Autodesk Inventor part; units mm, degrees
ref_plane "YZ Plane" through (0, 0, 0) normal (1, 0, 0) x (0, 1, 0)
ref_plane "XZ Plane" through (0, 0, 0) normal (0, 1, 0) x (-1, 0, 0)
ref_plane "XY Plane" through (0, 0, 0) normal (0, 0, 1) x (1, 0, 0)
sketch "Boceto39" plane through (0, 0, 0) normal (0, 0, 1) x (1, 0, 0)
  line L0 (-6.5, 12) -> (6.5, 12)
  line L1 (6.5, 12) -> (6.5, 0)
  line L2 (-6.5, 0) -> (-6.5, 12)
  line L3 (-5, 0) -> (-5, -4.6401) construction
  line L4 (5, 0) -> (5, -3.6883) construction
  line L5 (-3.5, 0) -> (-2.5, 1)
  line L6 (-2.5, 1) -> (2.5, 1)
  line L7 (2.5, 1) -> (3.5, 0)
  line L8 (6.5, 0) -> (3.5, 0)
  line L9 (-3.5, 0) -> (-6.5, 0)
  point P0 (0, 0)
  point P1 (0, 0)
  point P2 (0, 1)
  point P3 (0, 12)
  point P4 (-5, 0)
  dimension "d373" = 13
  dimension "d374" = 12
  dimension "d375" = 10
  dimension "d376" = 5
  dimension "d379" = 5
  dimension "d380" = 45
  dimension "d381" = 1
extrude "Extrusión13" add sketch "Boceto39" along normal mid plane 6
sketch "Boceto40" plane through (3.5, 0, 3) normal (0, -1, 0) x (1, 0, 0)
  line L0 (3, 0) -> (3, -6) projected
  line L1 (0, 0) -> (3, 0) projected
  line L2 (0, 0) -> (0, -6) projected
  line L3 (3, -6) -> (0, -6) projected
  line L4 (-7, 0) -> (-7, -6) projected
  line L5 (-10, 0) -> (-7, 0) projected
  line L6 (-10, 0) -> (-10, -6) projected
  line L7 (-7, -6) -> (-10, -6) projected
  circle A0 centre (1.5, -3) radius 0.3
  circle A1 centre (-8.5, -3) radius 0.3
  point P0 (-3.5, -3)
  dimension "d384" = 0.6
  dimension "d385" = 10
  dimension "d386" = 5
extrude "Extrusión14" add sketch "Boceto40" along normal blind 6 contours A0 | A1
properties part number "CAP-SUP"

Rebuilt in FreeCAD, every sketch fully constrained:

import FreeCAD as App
import Part
import Sketcher


def add_polygon(sketch, points):
    """Adds a closed chain of lines whose ends are joined by coincident constraints."""
    first, n = sketch.GeometryCount, len(points)
    for a, b in zip(points, points[1:] + points[:1]):
        sketch.addGeometry(Part.LineSegment(App.Vector(*a, 0), App.Vector(*b, 0)), False)
    for i in range(n):
        sketch.addConstraint(Sketcher.Constraint("Coincident", first + i, 2, first + (i + 1) % n, 1))

doc = App.newDocument("Part")
params = doc.addObject("Spreadsheet::Sheet", "Params")
for row, (alias, value) in enumerate([
    ("sketch1_width", "13 mm"),
    ("sketch1_width2", "5 mm"),
    ("sketch1_height", "12 mm"),
    ("pad1_length", "6 mm"),
    ("sketch2_diameter", "0.6 mm"),
    ("pad2_length", "6 mm"),
], start=1):
    params.set(f"A{row}", alias)
    params.set(f"B{row}", "=" + value)
    params.setAlias(f"B{row}", alias)

body = doc.addObject("PartDesign::Body", "Body")

# Sketch on XY plane
sketch1 = doc.addObject("Sketcher::SketchObject", "Sketch")
body.addObject(sketch1)
sketch1.AttachmentSupport = (doc.XY_Plane, [""])
sketch1.MapMode = "FlatFace"
add_polygon(sketch1, [(6.5, 12), (-6.5, 12), (-6.5, 0), (-3.5, 0), (-2.5, 1), (2.5, 1), (3.5, 0), (6.5, 0)])  # lines 0-7
sketch1.addConstraint(Sketcher.Constraint("Horizontal", 0))
sketch1.addConstraint(Sketcher.Constraint("Vertical", 1))
sketch1.addConstraint(Sketcher.Constraint("Horizontal", 2))
sketch1.addConstraint(Sketcher.Constraint("Horizontal", 4))
sketch1.addConstraint(Sketcher.Constraint("Horizontal", 6))
sketch1.addConstraint(Sketcher.Constraint("Vertical", 7))
sketch1.addConstraint(Sketcher.Constraint("Symmetric", 2, 2, 5, 2, -1, 1))
sketch1.addConstraint(Sketcher.Constraint("Symmetric", 1, 2, 6, 2, -2))
sketch1.addConstraint(Sketcher.Constraint("Perpendicular", 3, 5))
sketch1.addConstraint(Sketcher.Constraint("Equal", 3, 5))
sketch1.addConstraint(Sketcher.Constraint("DistanceX", 0, 2, 0, 1, 13.0))
sketch1.addConstraint(Sketcher.Constraint("DistanceX", 4, 1, 4, 2, 5.0))
sketch1.addConstraint(Sketcher.Constraint("DistanceY", 1, 2, 1, 1, 12.0))
sketch1.addConstraint(Sketcher.Constraint("DistanceY", -1, 1, 3, 2, 1.0))
sketch1.setExpression("Constraints[18]", "Params.sketch1_width")
sketch1.setExpression("Constraints[19]", "Params.sketch1_width2")
sketch1.setExpression("Constraints[20]", "Params.sketch1_height")
pad1 = doc.addObject("PartDesign::Pad", "Pad")
body.addObject(pad1)
pad1.Profile = sketch1
pad1.setExpression("Length", "Params.pad1_length")
pad1.Midplane = True

# Sketch on XZ plane
sketch2 = doc.addObject("Sketcher::SketchObject", "Sketch001")
body.addObject(sketch2)
sketch2.AttachmentSupport = (doc.XZ_Plane, [""])
sketch2.MapMode = "FlatFace"
sketch2.addGeometry(Part.Circle(App.Vector(5, 0, 0), App.Vector(0, 0, 1), 0.3), False)
sketch2.addGeometry(Part.Circle(App.Vector(-5, 0, 0), App.Vector(0, 0, 1), 0.3), False)
sketch2.addConstraint(Sketcher.Constraint("Equal", 0, 1))
sketch2.addConstraint(Sketcher.Constraint("Symmetric", 0, 3, 1, 3, -1, 1))
sketch2.addConstraint(Sketcher.Constraint("PointOnObject", 0, 3, -1))
sketch2.addConstraint(Sketcher.Constraint("Diameter", 0, 0.6))
sketch2.addConstraint(Sketcher.Constraint("DistanceX", -1, 1, 0, 3, 5.0))
sketch2.setExpression("Constraints[3]", "Params.sketch2_diameter")
pad2 = doc.addObject("PartDesign::Pad", "Pad001")
body.addObject(pad2)
pad2.Profile = sketch2
pad2.setExpression("Length", "Params.pad2_length")

doc.recompute()
